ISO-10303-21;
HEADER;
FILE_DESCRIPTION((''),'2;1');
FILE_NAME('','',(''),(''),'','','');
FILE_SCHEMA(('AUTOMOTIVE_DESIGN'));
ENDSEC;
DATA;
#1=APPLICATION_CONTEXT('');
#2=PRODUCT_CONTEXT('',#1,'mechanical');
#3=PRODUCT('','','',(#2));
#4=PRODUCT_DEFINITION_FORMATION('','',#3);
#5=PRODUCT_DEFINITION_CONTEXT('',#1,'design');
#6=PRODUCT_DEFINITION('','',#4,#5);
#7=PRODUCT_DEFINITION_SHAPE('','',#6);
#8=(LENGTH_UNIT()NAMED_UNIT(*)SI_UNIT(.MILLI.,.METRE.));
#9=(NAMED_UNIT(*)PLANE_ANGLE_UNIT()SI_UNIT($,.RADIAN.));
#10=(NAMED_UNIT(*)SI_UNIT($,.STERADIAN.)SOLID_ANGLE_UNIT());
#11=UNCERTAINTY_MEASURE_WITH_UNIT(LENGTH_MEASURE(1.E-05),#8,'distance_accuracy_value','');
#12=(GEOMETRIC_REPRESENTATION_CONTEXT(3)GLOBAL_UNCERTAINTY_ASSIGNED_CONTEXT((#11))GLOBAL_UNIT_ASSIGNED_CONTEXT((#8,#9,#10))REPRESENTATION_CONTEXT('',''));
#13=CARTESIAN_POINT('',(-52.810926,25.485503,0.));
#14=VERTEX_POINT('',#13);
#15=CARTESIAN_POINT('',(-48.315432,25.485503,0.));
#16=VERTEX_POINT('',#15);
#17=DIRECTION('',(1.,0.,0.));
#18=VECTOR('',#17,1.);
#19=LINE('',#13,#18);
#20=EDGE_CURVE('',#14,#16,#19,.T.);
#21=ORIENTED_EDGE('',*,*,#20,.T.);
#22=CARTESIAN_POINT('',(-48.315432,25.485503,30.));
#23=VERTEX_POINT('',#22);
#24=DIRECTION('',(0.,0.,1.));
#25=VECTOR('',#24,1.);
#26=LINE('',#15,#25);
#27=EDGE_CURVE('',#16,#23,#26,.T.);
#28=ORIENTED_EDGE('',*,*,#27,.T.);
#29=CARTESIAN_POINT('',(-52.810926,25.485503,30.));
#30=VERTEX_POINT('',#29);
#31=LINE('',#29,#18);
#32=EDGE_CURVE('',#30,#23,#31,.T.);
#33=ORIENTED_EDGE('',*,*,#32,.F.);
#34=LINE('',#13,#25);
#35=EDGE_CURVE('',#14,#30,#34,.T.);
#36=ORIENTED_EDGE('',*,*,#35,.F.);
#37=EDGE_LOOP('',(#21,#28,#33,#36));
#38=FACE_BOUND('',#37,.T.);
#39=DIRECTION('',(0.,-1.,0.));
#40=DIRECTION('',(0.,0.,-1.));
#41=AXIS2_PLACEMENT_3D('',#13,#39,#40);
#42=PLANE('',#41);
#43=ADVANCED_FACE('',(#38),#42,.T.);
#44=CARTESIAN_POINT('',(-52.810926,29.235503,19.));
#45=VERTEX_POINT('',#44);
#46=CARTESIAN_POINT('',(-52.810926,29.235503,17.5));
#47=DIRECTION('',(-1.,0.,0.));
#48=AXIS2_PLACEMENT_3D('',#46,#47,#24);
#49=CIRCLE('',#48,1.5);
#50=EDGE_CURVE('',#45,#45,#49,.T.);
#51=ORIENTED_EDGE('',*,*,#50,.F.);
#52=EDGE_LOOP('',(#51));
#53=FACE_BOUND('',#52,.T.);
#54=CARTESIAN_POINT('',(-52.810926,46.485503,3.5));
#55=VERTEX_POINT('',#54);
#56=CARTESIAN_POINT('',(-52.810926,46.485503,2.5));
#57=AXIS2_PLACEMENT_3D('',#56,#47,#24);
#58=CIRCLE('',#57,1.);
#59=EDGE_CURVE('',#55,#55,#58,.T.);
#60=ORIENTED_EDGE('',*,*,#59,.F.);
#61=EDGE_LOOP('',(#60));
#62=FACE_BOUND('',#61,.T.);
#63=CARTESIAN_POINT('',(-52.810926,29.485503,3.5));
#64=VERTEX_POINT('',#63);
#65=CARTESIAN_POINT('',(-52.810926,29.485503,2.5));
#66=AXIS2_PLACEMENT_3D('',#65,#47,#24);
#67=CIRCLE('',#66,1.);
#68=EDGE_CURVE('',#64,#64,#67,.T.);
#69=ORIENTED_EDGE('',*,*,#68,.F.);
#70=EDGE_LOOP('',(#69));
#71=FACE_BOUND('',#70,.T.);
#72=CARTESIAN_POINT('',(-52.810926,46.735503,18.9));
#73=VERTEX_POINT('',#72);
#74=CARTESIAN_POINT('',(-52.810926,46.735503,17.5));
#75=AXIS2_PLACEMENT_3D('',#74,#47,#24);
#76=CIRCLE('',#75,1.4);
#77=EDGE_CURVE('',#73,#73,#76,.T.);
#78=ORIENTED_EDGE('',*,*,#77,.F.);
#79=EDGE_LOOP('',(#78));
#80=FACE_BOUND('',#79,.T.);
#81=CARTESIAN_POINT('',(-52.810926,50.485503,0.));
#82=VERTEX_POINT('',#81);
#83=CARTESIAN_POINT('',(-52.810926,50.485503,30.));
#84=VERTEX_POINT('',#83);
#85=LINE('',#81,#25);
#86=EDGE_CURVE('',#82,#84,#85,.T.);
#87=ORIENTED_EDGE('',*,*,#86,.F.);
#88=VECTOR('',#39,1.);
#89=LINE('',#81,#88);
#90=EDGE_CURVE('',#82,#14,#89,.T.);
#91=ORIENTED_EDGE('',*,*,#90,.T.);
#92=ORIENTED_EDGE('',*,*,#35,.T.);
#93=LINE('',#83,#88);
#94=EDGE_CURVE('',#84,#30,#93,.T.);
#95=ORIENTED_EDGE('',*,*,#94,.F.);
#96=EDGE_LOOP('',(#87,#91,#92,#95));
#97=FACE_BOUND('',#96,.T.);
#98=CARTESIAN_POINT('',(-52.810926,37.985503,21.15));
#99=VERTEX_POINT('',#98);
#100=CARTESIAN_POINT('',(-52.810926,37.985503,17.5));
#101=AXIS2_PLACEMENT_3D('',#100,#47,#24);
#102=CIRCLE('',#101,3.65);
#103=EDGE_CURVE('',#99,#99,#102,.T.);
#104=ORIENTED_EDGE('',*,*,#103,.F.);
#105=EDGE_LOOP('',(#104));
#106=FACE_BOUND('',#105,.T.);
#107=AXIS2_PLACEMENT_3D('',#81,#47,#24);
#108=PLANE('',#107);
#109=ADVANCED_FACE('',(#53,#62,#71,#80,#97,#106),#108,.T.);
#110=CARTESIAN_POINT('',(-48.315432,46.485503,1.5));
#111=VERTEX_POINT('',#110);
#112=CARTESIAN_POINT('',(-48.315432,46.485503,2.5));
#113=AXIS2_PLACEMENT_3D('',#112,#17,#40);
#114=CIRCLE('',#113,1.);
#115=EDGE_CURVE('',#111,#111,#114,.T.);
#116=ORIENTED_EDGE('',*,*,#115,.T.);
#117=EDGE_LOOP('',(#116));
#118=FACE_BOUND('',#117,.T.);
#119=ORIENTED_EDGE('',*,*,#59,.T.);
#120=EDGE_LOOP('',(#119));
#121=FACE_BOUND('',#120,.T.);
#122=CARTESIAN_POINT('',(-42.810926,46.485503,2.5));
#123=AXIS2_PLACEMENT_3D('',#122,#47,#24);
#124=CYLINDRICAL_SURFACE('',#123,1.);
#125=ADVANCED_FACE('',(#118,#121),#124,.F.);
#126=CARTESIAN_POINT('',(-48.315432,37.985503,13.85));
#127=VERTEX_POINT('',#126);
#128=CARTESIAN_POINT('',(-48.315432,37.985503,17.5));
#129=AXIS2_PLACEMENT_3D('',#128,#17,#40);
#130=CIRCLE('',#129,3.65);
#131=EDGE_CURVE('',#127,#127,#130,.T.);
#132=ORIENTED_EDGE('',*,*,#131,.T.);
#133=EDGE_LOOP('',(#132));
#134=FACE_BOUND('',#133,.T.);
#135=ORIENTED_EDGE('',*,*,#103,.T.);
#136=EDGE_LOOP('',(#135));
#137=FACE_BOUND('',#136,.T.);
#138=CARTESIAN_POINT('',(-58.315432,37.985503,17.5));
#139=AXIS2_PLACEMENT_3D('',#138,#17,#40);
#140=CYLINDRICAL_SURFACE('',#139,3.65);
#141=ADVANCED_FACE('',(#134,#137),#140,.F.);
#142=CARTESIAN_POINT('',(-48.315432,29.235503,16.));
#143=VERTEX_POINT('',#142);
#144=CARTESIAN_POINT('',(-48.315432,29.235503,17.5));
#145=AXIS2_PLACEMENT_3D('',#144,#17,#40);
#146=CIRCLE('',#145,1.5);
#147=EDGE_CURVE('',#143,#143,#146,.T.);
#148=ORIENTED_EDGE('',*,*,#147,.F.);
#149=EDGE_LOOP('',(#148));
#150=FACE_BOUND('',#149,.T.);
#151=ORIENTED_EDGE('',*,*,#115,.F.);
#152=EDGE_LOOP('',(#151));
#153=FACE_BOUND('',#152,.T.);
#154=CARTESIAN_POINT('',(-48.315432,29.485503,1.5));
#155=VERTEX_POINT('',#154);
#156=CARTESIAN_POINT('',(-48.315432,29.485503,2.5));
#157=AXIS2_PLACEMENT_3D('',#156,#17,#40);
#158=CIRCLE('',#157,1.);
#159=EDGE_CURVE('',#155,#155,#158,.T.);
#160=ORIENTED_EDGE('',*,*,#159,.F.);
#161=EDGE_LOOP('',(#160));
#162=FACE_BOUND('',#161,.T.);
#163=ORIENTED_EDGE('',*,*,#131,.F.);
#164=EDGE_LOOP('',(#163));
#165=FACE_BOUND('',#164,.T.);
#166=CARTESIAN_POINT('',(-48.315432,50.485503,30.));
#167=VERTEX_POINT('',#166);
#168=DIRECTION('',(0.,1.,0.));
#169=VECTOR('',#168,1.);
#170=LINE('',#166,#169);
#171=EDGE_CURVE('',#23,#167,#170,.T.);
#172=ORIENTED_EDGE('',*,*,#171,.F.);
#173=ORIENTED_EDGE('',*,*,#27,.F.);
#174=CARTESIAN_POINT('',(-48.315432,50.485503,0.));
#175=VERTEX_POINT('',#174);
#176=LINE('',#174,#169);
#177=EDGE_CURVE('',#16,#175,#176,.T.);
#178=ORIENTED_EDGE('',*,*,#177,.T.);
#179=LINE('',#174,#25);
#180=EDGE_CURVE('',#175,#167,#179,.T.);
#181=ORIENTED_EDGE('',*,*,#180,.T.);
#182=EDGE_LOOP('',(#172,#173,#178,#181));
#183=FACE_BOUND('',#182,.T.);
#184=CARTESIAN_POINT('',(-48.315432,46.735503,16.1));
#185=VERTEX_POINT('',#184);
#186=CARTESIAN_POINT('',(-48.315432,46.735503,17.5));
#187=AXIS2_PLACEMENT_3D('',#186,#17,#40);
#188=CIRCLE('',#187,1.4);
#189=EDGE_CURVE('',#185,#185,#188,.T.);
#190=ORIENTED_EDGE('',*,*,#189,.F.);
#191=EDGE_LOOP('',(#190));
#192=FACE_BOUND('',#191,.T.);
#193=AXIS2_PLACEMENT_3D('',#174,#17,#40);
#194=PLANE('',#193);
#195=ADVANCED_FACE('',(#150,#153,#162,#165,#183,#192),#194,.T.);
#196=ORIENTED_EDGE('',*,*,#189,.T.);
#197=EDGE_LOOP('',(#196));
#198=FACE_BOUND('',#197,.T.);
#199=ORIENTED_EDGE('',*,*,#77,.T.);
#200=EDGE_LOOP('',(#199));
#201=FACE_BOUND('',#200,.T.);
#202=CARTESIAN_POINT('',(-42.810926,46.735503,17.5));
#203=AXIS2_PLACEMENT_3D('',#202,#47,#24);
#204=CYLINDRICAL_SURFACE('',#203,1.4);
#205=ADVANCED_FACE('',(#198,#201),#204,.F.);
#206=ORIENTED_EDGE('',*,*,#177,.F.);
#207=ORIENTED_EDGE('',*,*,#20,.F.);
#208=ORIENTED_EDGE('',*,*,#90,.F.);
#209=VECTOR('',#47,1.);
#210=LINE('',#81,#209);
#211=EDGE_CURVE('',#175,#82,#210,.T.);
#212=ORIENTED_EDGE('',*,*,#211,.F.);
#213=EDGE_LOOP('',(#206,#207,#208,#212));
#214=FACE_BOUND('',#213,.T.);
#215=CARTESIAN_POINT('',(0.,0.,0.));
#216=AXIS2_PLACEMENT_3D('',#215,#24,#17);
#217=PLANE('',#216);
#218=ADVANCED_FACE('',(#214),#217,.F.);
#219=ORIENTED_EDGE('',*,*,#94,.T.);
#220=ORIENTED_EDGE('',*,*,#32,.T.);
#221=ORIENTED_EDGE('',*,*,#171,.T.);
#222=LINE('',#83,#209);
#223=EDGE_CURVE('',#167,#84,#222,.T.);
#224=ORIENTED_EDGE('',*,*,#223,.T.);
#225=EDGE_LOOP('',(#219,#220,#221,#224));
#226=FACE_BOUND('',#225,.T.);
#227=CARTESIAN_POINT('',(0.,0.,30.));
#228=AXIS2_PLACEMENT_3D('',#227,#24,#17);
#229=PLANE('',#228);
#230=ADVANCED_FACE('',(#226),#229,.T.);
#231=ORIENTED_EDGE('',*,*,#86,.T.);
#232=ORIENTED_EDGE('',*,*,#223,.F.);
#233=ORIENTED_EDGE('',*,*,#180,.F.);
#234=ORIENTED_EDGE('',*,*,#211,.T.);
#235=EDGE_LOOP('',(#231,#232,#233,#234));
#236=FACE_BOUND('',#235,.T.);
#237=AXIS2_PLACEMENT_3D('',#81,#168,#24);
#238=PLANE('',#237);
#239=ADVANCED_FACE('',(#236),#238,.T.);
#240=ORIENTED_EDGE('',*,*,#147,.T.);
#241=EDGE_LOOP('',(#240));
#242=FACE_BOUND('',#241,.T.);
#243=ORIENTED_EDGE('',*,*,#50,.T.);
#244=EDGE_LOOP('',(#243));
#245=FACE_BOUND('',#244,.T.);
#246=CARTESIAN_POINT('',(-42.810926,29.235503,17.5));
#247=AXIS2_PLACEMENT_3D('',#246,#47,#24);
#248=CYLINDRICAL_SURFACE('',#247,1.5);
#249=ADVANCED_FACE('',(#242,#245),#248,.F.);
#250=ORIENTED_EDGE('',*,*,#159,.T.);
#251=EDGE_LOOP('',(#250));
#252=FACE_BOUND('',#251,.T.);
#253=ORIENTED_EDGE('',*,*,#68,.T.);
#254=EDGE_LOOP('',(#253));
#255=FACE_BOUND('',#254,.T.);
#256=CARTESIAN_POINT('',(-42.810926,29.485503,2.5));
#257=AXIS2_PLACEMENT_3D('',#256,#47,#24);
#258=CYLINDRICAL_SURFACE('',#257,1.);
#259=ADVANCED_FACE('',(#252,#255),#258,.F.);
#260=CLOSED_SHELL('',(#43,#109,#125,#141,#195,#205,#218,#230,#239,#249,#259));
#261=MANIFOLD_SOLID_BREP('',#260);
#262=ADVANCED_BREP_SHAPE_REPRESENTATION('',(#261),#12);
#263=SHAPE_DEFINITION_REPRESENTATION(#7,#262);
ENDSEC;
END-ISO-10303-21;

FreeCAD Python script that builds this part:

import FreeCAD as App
import Part
import Sketcher
Q = App.Units.Quantity

doc = App.newDocument("Part")
body = doc.addObject("PartDesign::Body", "Body")

sketch1 = doc.addObject("Sketcher::SketchObject", "Sketch")
body.addObject(sketch1)
sketch1.AttachmentSupport = (doc.XY_Plane, [""])
sketch1.MapMode = "FlatFace"
sketch1.AttachmentOffset = App.Placement(App.Vector(0, 0, 5), App.Rotation())
sketch1.addGeometry(Part.LineSegment(App.Vector(-52.8, 50.5, 0), App.Vector(-52.8, 25.5, 0)), False)
sketch1.addGeometry(Part.LineSegment(App.Vector(-52.8, 25.5, 0), App.Vector(-48.3, 25.5, 0)), False)
sketch1.addGeometry(Part.LineSegment(App.Vector(-48.3, 25.5, 0), App.Vector(-48.3, 50.5, 0)), False)
sketch1.addGeometry(Part.LineSegment(App.Vector(-48.3, 50.5, 0), App.Vector(-52.8, 50.5, 0)), False)
sketch1.addConstraint(Sketcher.Constraint("Coincident", 0, 2, 1, 1))
sketch1.addConstraint(Sketcher.Constraint("Coincident", 1, 2, 2, 1))
sketch1.addConstraint(Sketcher.Constraint("Coincident", 2, 2, 3, 1))
sketch1.addConstraint(Sketcher.Constraint("Coincident", 3, 2, 0, 1))
sketch1.addConstraint(Sketcher.Constraint("Vertical", 0))
sketch1.addConstraint(Sketcher.Constraint("Horizontal", 1))
sketch1.addConstraint(Sketcher.Constraint("Vertical", 2))
sketch1.addConstraint(Sketcher.Constraint("Horizontal", 3))
sketch1.addConstraint(Sketcher.Constraint("DistanceY", 0, 2, 0, 1, Q("25 mm")))
sketch1.addConstraint(Sketcher.Constraint("DistanceX", 1, 1, 1, 2, Q("4.495494 mm")))
sketch1.addConstraint(Sketcher.Constraint("DistanceX", 1, 2, -1, 1, Q("48.315432 mm")))
sketch1.addConstraint(Sketcher.Constraint("DistanceY", -1, 1, 0, 2, Q("25.485503 mm")))
pad1 = doc.addObject("PartDesign::Pad", "Pad")
body.addObject(pad1)
pad1.Profile = sketch1
pad1.Type = "TwoLengths"
pad1.Length = 25
pad1.Length2 = 5

sketch2 = doc.addObject("Sketcher::SketchObject", "Sketch001")
body.addObject(sketch2)
sketch2.AttachmentSupport = (doc.YZ_Plane, [""])
sketch2.MapMode = "FlatFace"
sketch2.AttachmentOffset = App.Placement(App.Vector(0, 0, -52.810926), App.Rotation())
sketch2.addGeometry(Part.Circle(App.Vector(46.5, 2.5, 0), App.Vector(0, 0, 1), 1), False)
sketch2.addConstraint(Sketcher.Constraint("Diameter", 0, Q("2 mm")))
sketch2.addConstraint(Sketcher.Constraint("DistanceY", -1, 1, 0, 3, Q("2.5 mm")))
sketch2.addConstraint(Sketcher.Constraint("DistanceX", -1, 1, 0, 3, Q("46.485503 mm")))
pocket1 = doc.addObject("PartDesign::Pocket", "Pocket")
body.addObject(pocket1)
pocket1.Profile = sketch2
pocket1.Length = 10
pocket1.Reversed = True

sketch3 = doc.addObject("Sketcher::SketchObject", "Sketch002")
body.addObject(sketch3)
sketch3.AttachmentSupport = (doc.YZ_Plane, [""])
sketch3.MapMode = "FlatFace"
sketch3.AttachmentOffset = App.Placement(App.Vector(0, 0, -52.810926), App.Rotation())
sketch3.addGeometry(Part.Circle(App.Vector(29.5, 2.5, 0), App.Vector(0, 0, 1), 1), False)
sketch3.addConstraint(Sketcher.Constraint("Diameter", 0, Q("2 mm")))
sketch3.addConstraint(Sketcher.Constraint("DistanceY", -1, 1, 0, 3, Q("2.5 mm")))
sketch3.addConstraint(Sketcher.Constraint("DistanceX", -1, 1, 0, 3, Q("29.485503 mm")))
pocket2 = doc.addObject("PartDesign::Pocket", "Pocket001")
body.addObject(pocket2)
pocket2.Profile = sketch3
pocket2.Length = 10
pocket2.Reversed = True

sketch4 = doc.addObject("Sketcher::SketchObject", "Sketch003")
body.addObject(sketch4)
sketch4.AttachmentSupport = (doc.YZ_Plane, [""])
sketch4.MapMode = "FlatFace"
sketch4.AttachmentOffset = App.Placement(App.Vector(0, 0, -48.315432), App.Rotation())
sketch4.addGeometry(Part.Circle(App.Vector(38, 17.5, 0), App.Vector(0, 0, 1), 3.6), False)
sketch4.addConstraint(Sketcher.Constraint("Diameter", 0, Q("7.3 mm")))
sketch4.addConstraint(Sketcher.Constraint("DistanceY", -1, 1, 0, 3, Q("17.5 mm")))
sketch4.addConstraint(Sketcher.Constraint("DistanceX", -1, 1, 0, 3, Q("37.985503 mm")))
pocket3 = doc.addObject("PartDesign::Pocket", "Pocket002")
body.addObject(pocket3)
pocket3.Profile = sketch4
pocket3.Length = 10

sketch5 = doc.addObject("Sketcher::SketchObject", "Sketch004")
body.addObject(sketch5)
sketch5.AttachmentSupport = (doc.YZ_Plane, [""])
sketch5.MapMode = "FlatFace"
sketch5.AttachmentOffset = App.Placement(App.Vector(0, 0, -52.810926), App.Rotation())
sketch5.addGeometry(Part.Circle(App.Vector(46.7, 17.5, 0), App.Vector(0, 0, 1), 1.4), False)
sketch5.addConstraint(Sketcher.Constraint("Diameter", 0, Q("2.8 mm")))
sketch5.addConstraint(Sketcher.Constraint("DistanceY", -1, 1, 0, 3, Q("17.5 mm")))
sketch5.addConstraint(Sketcher.Constraint("DistanceX", -1, 1, 0, 3, Q("46.735503 mm")))
pocket4 = doc.addObject("PartDesign::Pocket", "Pocket003")
body.addObject(pocket4)
pocket4.Profile = sketch5
pocket4.Length = 10
pocket4.Reversed = True

sketch6 = doc.addObject("Sketcher::SketchObject", "Sketch005")
body.addObject(sketch6)
sketch6.AttachmentSupport = (doc.YZ_Plane, [""])
sketch6.MapMode = "FlatFace"
sketch6.AttachmentOffset = App.Placement(App.Vector(0, 0, -52.810926), App.Rotation())
sketch6.addGeometry(Part.Circle(App.Vector(29.2, 17.5, 0), App.Vector(0, 0, 1), 1.5), False)
sketch6.addConstraint(Sketcher.Constraint("Diameter", 0, Q("3 mm")))
sketch6.addConstraint(Sketcher.Constraint("DistanceY", -1, 1, 0, 3, Q("17.5 mm")))
sketch6.addConstraint(Sketcher.Constraint("DistanceX", -1, 1, 0, 3, Q("29.235503 mm")))
pocket5 = doc.addObject("PartDesign::Pocket", "Pocket004")
body.addObject(pocket5)
pocket5.Profile = sketch6
pocket5.Length = 10
pocket5.Reversed = True

doc.recompute()
